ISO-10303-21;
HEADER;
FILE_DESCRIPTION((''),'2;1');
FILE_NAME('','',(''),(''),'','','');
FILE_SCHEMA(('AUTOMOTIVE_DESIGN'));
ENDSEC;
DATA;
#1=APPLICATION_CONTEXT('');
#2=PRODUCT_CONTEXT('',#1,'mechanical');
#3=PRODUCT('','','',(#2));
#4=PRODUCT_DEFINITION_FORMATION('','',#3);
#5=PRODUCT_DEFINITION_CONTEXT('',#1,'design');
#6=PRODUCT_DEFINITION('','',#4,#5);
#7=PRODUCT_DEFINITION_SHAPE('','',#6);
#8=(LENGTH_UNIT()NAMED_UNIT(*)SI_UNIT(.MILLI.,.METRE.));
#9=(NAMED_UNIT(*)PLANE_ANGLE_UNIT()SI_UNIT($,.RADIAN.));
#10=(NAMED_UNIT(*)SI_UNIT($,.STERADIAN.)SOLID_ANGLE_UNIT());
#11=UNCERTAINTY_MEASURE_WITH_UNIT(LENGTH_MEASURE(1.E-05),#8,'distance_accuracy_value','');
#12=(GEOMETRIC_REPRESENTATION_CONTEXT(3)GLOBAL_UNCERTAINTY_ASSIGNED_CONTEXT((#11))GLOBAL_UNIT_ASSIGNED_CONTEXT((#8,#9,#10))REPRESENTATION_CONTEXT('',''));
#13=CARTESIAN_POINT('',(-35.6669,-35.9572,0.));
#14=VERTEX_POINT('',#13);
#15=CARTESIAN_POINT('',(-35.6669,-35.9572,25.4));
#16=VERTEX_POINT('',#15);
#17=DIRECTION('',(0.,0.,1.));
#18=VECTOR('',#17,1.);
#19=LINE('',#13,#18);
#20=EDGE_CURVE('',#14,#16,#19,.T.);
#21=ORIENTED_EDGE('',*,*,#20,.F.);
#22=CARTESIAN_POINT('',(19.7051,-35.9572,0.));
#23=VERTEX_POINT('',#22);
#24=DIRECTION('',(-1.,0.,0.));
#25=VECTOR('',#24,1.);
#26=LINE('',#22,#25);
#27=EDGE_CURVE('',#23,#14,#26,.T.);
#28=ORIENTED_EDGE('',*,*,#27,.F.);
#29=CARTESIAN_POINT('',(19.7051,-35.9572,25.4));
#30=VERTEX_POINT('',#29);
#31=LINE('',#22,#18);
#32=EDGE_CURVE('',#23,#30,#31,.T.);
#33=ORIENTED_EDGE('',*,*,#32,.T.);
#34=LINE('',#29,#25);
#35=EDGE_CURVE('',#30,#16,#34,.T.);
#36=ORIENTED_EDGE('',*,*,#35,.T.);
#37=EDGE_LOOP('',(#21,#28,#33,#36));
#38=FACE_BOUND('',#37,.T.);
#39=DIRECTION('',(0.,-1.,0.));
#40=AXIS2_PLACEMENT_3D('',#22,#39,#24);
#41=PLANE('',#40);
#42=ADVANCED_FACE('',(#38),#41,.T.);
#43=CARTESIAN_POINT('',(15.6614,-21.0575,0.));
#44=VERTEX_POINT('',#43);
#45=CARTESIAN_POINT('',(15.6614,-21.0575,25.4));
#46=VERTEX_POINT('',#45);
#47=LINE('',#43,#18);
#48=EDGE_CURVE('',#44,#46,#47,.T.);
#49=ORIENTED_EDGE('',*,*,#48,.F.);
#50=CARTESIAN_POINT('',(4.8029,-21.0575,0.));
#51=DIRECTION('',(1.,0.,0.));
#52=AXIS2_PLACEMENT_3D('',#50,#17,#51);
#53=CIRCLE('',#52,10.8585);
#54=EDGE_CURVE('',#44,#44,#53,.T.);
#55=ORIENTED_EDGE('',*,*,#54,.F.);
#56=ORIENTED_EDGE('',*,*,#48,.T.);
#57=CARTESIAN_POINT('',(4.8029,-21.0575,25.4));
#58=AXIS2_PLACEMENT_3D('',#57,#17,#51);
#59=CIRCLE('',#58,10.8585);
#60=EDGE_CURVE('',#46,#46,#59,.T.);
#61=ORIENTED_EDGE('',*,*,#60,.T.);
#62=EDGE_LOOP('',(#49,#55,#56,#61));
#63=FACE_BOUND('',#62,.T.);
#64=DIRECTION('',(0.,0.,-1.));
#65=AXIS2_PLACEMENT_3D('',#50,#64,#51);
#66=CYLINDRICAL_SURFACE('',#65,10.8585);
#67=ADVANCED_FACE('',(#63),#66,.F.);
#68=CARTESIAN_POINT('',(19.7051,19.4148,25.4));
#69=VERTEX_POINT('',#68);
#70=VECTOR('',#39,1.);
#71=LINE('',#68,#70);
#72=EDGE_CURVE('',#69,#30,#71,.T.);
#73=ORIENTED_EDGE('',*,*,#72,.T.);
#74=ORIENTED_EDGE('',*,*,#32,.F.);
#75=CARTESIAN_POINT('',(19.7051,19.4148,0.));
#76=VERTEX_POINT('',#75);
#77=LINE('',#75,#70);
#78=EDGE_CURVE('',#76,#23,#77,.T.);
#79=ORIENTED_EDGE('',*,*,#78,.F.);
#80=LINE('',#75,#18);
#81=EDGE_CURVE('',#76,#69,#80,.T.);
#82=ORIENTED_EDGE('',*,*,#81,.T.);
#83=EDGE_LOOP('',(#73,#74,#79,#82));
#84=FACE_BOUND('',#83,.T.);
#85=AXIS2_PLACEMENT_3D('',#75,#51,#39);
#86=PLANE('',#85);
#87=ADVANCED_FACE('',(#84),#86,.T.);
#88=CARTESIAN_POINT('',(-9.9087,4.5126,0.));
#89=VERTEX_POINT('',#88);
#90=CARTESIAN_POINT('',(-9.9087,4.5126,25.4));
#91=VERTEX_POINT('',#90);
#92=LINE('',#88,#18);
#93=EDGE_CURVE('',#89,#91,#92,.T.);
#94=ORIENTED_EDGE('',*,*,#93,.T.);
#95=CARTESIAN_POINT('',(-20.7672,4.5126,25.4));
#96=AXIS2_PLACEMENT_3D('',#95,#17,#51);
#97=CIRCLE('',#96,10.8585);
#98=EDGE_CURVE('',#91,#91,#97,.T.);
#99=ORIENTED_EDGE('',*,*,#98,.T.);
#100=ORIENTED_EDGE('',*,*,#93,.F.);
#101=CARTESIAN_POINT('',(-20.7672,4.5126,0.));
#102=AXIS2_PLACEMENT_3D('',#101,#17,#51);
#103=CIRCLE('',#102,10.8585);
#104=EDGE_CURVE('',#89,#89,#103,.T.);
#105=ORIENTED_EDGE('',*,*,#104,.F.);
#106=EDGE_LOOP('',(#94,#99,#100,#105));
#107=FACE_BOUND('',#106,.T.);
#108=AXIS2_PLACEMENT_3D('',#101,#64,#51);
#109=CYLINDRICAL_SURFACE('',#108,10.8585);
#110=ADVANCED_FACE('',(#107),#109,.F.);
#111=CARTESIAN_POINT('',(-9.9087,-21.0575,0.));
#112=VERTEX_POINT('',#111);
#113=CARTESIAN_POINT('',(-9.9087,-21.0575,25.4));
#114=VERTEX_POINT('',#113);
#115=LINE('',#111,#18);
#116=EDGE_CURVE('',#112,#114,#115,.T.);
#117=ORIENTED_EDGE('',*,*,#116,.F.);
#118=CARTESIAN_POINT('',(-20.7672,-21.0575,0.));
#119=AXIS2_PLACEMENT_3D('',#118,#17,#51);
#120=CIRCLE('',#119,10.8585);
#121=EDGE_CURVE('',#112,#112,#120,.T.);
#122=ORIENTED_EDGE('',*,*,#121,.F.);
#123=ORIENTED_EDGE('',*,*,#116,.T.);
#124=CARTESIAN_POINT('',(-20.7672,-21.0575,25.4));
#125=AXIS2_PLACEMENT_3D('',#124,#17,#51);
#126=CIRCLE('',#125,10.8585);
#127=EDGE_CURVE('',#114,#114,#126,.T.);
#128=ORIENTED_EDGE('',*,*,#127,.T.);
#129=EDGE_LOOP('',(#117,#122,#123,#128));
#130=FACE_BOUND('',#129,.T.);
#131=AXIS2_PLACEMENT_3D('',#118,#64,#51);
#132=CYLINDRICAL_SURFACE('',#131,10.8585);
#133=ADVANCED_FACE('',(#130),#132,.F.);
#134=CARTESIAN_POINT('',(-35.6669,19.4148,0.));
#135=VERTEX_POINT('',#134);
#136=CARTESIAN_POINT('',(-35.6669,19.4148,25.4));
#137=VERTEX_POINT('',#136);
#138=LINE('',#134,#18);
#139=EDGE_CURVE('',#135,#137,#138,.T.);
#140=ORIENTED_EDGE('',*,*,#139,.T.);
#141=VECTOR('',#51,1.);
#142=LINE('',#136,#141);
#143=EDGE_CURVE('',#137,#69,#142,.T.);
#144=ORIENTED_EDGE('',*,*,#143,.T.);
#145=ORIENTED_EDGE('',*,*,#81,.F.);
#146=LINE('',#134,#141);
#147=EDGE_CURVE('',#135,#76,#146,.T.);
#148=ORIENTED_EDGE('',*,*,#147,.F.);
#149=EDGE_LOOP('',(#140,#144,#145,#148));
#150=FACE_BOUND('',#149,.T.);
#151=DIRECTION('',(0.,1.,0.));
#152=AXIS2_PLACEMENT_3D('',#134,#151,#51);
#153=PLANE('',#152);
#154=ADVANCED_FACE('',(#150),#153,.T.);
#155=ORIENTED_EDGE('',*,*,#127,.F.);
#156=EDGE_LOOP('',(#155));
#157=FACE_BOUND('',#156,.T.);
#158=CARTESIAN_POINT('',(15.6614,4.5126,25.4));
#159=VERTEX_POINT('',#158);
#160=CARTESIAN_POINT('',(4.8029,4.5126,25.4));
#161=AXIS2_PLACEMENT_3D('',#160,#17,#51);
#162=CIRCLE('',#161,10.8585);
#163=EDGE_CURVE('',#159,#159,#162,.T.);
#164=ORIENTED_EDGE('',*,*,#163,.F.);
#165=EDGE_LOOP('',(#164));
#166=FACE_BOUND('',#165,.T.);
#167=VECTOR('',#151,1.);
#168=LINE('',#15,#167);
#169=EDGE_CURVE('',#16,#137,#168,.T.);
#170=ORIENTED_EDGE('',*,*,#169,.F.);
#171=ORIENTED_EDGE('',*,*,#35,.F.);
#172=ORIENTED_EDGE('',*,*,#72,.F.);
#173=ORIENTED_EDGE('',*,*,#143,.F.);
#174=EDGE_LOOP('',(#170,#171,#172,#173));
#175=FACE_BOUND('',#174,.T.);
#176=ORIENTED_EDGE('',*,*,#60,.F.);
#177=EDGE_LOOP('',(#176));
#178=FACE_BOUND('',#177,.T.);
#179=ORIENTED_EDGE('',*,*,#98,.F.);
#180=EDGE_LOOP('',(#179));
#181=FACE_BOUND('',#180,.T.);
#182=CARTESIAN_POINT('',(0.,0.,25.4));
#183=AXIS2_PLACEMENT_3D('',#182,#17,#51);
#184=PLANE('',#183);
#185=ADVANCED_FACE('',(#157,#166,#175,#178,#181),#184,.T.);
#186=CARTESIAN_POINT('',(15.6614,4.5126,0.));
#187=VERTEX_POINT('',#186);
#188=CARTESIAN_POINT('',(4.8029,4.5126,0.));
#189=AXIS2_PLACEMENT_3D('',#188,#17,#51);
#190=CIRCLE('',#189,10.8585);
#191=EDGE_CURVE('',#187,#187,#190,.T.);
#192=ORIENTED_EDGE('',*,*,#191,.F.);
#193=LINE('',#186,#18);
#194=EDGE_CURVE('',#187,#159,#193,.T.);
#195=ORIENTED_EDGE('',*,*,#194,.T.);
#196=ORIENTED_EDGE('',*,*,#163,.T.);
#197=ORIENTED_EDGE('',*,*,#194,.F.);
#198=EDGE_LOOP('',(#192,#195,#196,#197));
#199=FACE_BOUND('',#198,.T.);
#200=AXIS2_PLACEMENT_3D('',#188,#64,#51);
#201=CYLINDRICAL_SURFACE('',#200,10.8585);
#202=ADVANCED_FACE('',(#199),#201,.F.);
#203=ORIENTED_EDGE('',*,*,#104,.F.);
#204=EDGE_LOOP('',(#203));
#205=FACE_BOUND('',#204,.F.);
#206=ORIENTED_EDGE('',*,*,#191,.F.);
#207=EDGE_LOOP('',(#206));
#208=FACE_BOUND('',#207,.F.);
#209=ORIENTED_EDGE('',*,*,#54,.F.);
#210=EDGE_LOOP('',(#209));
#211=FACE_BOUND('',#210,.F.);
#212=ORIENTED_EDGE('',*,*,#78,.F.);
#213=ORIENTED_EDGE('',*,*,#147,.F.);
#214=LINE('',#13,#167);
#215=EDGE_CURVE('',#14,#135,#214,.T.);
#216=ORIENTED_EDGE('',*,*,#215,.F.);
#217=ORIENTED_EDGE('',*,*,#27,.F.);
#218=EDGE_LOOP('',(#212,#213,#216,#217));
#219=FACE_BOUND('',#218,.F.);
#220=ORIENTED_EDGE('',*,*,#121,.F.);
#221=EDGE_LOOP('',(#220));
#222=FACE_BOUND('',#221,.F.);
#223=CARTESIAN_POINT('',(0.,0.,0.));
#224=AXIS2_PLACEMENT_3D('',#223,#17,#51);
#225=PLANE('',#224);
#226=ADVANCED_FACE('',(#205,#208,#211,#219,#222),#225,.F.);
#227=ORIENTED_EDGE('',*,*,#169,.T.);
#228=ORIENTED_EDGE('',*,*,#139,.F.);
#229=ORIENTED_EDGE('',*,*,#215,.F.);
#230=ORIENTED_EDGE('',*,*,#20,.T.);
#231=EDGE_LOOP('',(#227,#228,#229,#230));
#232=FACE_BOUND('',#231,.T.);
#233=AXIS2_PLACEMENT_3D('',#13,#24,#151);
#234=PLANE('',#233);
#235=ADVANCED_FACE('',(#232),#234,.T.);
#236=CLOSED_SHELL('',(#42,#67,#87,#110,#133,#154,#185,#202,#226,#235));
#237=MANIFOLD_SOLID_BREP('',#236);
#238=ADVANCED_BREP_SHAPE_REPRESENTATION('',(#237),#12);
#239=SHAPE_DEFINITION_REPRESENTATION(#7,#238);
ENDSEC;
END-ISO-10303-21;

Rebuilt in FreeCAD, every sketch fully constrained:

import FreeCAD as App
import Part
import Sketcher
from FreeCAD import Vector
Q = App.Units.Quantity


def add_polygon(sketch, points):
    """Adds a closed chain of lines whose ends are joined by coincident constraints."""
    first, n = sketch.GeometryCount, len(points)
    for a, b in zip(points, points[1:] + points[:1]):
        sketch.addGeometry(Part.LineSegment(App.Vector(*a, 0), App.Vector(*b, 0)), False)
    for i in range(n):
        sketch.addConstraint(Sketcher.Constraint("Coincident", first + i, 2, first + (i + 1) % n, 1))

doc = App.newDocument("Part")
body = doc.addObject("PartDesign::Body", "Body")

sketch1 = doc.addObject("Sketcher::SketchObject", "Sketch")
body.addObject(sketch1)
sketch1.AttachmentSupport = (doc.XY_Plane, [""])
sketch1.MapMode = "FlatFace"
add_polygon(sketch1, [(20, 19), (-36, 19), (-36, -36), (20, -36)])
sketch1.addGeometry(Part.Circle(Vector(-21, -21, 0), Vector(0, 0, 1), 11), False)
sketch1.addGeometry(Part.Circle(Vector(5, -21, 0), Vector(0, 0, 1), 11), False)
sketch1.addGeometry(Part.Circle(Vector(-21, 5, 0), Vector(0, 0, 1), 11), False)
sketch1.addGeometry(Part.Circle(Vector(5, 5, 0), Vector(0, 0, 1), 11), False)
sketch1.addConstraint([
    Sketcher.Constraint("Horizontal", 0),
    Sketcher.Constraint("Vertical", 1),
    Sketcher.Constraint("Horizontal", 2),
    Sketcher.Constraint("Vertical", 3),
    Sketcher.Constraint("Equal", 4, 5),
    Sketcher.Constraint("Equal", 5, 6),
    Sketcher.Constraint("Equal", 6, 7),
    Sketcher.Constraint("Horizontal", 4, 3, 5, 3),
    Sketcher.Constraint("Horizontal", 6, 3, 7, 3),
    Sketcher.Constraint("Vertical", 4, 3, 6, 3),
    Sketcher.Constraint("Vertical", 5, 3, 7, 3),
    Sketcher.Constraint("Equal", 2, 1),
    Sketcher.Constraint("Diameter", 4, Q("0.855 in")),
    Sketcher.Constraint("DistanceX", 0, 2, 0, 1, Q("2.18 in")),
    Sketcher.Constraint("DistanceX", 4, 3, 5, 3, Q("1.0067 in")),
    Sketcher.Constraint("DistanceY", 4, 3, 6, 3, Q("1.0067 in")),
    Sketcher.Constraint("DistanceX", 0, 2, 6, 3, Q("0.5866 in")),
    Sketcher.Constraint("DistanceY", 6, 3, 0, 2, Q("0.5867 in")),
    Sketcher.Constraint("DistanceX", 4, 3, -1, 1, Q("0.8176 in")),
    Sketcher.Constraint("DistanceY", 4, 3, -1, 1, Q("21.0575 mm")),
])
pad1 = doc.addObject("PartDesign::Pad", "Pad")
body.addObject(pad1)
pad1.Profile = sketch1
pad1.Length = Q("1 in")

doc.recompute()
